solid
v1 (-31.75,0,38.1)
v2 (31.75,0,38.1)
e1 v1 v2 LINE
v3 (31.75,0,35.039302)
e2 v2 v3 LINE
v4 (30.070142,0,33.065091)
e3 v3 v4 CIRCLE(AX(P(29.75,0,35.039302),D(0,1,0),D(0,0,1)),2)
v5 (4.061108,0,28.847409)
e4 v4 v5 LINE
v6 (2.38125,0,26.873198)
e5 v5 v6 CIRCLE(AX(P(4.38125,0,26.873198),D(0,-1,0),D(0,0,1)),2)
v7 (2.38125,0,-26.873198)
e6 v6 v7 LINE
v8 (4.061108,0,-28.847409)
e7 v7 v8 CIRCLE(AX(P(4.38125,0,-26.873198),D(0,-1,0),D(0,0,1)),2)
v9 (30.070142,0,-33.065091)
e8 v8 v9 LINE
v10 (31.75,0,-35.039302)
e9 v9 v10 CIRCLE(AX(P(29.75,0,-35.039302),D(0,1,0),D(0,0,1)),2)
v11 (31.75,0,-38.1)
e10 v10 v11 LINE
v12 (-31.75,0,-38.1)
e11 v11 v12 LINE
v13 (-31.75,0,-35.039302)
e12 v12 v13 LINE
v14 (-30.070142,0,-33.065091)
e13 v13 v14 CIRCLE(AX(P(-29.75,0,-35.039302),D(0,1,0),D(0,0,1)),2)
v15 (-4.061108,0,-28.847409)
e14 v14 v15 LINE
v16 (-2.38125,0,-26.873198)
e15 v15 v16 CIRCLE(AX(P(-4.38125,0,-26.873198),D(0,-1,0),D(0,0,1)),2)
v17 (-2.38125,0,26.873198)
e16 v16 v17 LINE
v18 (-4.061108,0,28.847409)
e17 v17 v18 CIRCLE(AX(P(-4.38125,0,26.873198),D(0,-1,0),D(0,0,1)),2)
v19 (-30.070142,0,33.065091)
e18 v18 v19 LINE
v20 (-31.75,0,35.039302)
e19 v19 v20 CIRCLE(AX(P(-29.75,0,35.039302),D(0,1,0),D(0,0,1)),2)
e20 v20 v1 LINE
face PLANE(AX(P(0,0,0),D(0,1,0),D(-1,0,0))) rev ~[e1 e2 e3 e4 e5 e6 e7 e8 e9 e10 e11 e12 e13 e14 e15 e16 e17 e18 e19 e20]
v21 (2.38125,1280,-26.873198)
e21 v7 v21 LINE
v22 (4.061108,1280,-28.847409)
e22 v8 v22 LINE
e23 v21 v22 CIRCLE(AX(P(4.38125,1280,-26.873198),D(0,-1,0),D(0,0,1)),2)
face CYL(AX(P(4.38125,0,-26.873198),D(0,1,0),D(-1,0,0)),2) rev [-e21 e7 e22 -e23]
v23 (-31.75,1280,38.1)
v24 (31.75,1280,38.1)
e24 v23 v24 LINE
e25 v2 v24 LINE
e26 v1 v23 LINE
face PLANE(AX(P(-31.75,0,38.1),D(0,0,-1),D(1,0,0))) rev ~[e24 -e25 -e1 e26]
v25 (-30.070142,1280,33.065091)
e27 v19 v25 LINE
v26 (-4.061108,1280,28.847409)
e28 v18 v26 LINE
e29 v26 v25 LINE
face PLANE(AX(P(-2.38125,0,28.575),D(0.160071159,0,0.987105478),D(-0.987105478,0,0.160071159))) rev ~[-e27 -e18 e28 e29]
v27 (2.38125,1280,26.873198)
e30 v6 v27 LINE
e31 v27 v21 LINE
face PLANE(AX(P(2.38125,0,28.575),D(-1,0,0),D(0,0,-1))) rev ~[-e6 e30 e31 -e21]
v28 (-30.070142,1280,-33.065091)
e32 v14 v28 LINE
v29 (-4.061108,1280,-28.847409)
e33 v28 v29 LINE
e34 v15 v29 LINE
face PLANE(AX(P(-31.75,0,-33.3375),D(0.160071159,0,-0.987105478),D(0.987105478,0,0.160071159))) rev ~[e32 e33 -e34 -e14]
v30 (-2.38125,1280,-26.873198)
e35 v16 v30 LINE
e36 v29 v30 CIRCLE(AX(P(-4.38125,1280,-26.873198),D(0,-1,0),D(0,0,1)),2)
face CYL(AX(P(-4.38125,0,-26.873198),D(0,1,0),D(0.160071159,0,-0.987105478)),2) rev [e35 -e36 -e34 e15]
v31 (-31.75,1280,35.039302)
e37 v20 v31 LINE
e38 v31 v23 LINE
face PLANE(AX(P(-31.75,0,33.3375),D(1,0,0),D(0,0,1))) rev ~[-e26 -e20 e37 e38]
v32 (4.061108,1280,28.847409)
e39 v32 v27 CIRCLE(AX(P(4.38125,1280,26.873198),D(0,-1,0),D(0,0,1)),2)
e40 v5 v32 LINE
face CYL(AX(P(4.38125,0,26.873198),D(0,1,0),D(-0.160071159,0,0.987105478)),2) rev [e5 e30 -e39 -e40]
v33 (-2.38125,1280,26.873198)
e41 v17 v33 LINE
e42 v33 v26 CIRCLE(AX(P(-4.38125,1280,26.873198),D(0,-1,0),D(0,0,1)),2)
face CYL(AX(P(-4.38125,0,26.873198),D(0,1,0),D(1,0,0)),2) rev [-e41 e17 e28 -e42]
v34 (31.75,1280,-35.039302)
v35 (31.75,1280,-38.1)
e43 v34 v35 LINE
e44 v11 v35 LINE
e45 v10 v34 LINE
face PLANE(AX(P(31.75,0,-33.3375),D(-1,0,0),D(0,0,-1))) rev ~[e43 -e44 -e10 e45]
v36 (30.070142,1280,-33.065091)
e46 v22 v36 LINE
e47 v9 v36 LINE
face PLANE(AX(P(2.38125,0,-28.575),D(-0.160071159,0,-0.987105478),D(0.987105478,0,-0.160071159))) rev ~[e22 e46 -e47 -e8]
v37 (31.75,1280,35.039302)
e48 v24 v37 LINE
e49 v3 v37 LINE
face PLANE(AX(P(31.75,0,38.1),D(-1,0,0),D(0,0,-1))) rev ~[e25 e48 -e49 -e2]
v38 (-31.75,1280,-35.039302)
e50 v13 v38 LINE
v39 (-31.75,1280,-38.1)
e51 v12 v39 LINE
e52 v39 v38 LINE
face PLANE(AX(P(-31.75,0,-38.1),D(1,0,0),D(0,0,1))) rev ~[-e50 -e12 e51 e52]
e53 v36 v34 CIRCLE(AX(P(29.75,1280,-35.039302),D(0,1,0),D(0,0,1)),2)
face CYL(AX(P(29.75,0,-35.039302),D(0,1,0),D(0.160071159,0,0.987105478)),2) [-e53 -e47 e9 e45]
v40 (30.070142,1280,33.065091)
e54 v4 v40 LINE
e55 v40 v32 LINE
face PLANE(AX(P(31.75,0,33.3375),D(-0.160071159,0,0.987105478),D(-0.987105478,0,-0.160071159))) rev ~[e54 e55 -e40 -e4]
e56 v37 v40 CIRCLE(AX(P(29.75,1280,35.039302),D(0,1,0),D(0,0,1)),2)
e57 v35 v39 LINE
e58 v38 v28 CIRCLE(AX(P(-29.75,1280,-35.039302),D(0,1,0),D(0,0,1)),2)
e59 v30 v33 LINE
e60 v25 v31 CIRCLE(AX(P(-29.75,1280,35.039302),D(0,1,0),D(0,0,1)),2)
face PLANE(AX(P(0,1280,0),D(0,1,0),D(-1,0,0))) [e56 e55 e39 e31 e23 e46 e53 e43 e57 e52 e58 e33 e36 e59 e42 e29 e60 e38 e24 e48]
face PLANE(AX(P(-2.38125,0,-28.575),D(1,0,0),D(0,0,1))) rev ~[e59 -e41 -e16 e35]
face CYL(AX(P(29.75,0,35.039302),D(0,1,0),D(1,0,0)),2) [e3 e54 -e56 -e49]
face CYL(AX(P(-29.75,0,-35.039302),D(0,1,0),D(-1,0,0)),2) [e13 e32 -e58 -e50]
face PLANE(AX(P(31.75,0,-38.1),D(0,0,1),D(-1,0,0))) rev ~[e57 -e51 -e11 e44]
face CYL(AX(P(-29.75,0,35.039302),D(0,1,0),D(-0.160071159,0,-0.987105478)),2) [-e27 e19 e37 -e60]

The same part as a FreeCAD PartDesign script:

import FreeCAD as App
import Part
import Sketcher
Q = App.Units.Quantity


def edges_at(feature, points):
    """Names of the edges that pass closest to the given points."""
    edges = feature.Shape.Edges
    near = lambda p: min(range(len(edges)), key=lambda i: edges[i].distToShape(Part.Vertex(*p))[0])
    return sorted({f"Edge{near(p) + 1}" for p in points})


def add_polygon(sketch, points):
    """Adds a closed chain of lines whose ends are joined by coincident constraints."""
    first, n = sketch.GeometryCount, len(points)
    for a, b in zip(points, points[1:] + points[:1]):
        sketch.addGeometry(Part.LineSegment(App.Vector(*a, 0), App.Vector(*b, 0)), False)
    for i in range(n):
        sketch.addConstraint(Sketcher.Constraint("Coincident", first + i, 2, first + (i + 1) % n, 1))

doc = App.newDocument("Part")
params = doc.addObject("Spreadsheet::Sheet", "Params")
for row, (alias, value) in enumerate([
    ("sketch1_width", "2.5 in"),
    ("sketch1_height", "2.25 in"),
    ("sketch1_height2", "0.1875 in"),
    ("pad1_length", "1280 mm"),
    ("fillet_radius", "2 mm"),
], start=1):
    params.set(f"A{row}", alias)
    params.set(f"B{row}", "=" + value)
    params.setAlias(f"B{row}", alias)

body = doc.addObject("PartDesign::Body", "Body")

sketch1 = doc.addObject("Sketcher::SketchObject", "Sketch")
body.addObject(sketch1)
sketch1.AttachmentSupport = (doc.XZ_Plane, [""])
sketch1.MapMode = "FlatFace"
add_polygon(sketch1, [(31.8, 38.1), (-31.8, 38.1), (-31.8, 33.3), (-2.4, 28.6), (-2.4, -28.6), (-31.8, -33.3), (-31.8, -38.1), (31.8, -38.1), (31.8, -33.3), (2.4, -28.6), (2.4, 28.6), (31.8, 33.3)])
sketch1.addConstraint([
    Sketcher.Constraint("Horizontal", 0),
    Sketcher.Constraint("Vertical", 1),
    Sketcher.Constraint("Vertical", 3),
    Sketcher.Constraint("Vertical", 5),
    Sketcher.Constraint("Horizontal", 6),
    Sketcher.Constraint("Vertical", 7),
    Sketcher.Constraint("Vertical", 9),
    Sketcher.Constraint("Vertical", 11),
    Sketcher.Constraint("Symmetric", 0, 2, 6, 2, -1, 1),
    Sketcher.Constraint("Symmetric", 2, 2, 8, 2, -1, 1),
    Sketcher.Constraint("Symmetric", 4, 2, 10, 2, -1, 1),
    Sketcher.Constraint("Symmetric", 4, 2, 7, 2, -2),
    Sketcher.Constraint("Parallel", 2, 8),
    Sketcher.Constraint("Parallel", 4, 10),
    Sketcher.Constraint("Horizontal", 3, 2, 8, 2),
    Sketcher.Constraint("DistanceX", 0, 2, 0, 1, Q("2.5 in")),
    Sketcher.Constraint("DistanceY", 5, 2, 0, 2, Q("3 in")),
    Sketcher.Constraint("DistanceY", 3, 2, 3, 1, Q("2.25 in")),
    Sketcher.Constraint("DistanceY", 1, 2, 1, 1, Q("0.1875 in")),
    Sketcher.Constraint("DistanceX", 2, 2, -1, 1, Q("0.09375 in")),
])
sketch1.setExpression("Constraints[27]", "Params.sketch1_width")
sketch1.setExpression("Constraints[29]", "Params.sketch1_height")
sketch1.setExpression("Constraints[30]", "Params.sketch1_height2")
pad1 = doc.addObject("PartDesign::Pad", "Pad")
body.addObject(pad1)
pad1.Profile = sketch1
pad1.setExpression("Length", "Params.pad1_length")
pad1.Reversed = True
doc.recompute()

fillet = doc.addObject("PartDesign::Fillet", "Fillet")
body.addObject(fillet)
fillet.Base = (pad1, edges_at(pad1, [
    (31.75, 640, 33.337),
    (2.381, 640, 28.575),
    (2.381, 640, -28.575),
    (31.75, 640, -33.337),
    (-31.75, 640, -33.337),
    (-2.381, 640, -28.575),
    (-2.381, 640, 28.575),
    (-31.75, 640, 33.337),
]))
fillet.setExpression("Radius", "Params.fillet_radius")

doc.recompute()
